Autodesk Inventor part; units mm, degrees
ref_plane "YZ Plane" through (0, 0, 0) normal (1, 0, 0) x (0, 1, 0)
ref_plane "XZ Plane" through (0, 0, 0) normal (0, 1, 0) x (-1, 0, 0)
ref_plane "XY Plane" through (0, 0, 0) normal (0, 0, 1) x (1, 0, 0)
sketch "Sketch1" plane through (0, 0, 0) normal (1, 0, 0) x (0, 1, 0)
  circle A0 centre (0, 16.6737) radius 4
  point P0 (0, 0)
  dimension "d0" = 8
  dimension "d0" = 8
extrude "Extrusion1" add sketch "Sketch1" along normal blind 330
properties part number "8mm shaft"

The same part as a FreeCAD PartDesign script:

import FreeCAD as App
import Part
import Sketcher

doc = App.newDocument("Part")
body = doc.addObject("PartDesign::Body", "Body")

sketch1 = doc.addObject("Sketcher::SketchObject", "Sketch")
body.addObject(sketch1)
sketch1.AttachmentSupport = (doc.YZ_Plane, [""])
sketch1.MapMode = "FlatFace"
sketch1.addGeometry(Part.Circle(App.Vector(0, 16.7, 0), App.Vector(0, 0, 1), 4), False)
sketch1.addConstraint([
    Sketcher.Constraint("PointOnObject", 0, 3, -2),
    Sketcher.Constraint("Diameter", 0, 8.0),
    Sketcher.Constraint("DistanceY", -1, 1, 0, 3, 16.6737),
])
pad1 = doc.addObject("PartDesign::Pad", "Pad")
body.addObject(pad1)
pad1.Profile = sketch1
pad1.Length = 330

doc.recompute()
